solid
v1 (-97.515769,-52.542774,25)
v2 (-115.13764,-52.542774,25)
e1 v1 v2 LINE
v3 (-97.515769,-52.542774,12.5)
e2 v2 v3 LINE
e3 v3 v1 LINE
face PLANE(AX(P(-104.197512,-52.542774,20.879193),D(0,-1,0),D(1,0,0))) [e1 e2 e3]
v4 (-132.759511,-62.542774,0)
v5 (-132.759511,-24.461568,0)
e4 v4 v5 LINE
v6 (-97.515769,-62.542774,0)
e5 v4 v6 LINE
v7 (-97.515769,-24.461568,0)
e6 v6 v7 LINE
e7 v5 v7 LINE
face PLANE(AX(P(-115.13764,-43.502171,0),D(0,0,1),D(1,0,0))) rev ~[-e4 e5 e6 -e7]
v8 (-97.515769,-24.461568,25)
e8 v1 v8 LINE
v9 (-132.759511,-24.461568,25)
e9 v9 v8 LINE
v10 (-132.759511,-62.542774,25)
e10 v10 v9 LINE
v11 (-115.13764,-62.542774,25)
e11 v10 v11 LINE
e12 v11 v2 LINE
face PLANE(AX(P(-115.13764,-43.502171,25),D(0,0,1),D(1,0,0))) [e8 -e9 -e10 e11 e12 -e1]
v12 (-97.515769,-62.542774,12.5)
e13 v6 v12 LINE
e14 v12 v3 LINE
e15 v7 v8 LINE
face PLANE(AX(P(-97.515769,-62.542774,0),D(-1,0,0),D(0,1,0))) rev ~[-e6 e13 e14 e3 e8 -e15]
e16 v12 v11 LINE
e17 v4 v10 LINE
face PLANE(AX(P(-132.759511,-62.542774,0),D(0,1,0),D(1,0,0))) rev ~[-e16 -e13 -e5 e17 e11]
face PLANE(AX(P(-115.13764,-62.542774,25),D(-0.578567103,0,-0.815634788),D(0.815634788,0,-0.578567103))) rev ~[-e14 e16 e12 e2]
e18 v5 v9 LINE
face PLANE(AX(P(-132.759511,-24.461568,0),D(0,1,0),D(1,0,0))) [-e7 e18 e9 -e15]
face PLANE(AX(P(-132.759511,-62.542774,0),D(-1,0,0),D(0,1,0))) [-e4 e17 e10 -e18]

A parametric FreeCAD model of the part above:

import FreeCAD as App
import Part
import Sketcher
Q = App.Units.Quantity


def add_polygon(sketch, points):
    """Adds a closed chain of lines whose ends are joined by coincident constraints."""
    first, n = sketch.GeometryCount, len(points)
    for a, b in zip(points, points[1:] + points[:1]):
        sketch.addGeometry(Part.LineSegment(App.Vector(*a, 0), App.Vector(*b, 0)), False)
    for i in range(n):
        sketch.addConstraint(Sketcher.Constraint("Coincident", first + i, 2, first + (i + 1) % n, 1))

doc = App.newDocument("Part")
body = doc.addObject("PartDesign::Body", "Body")

# Sketch on XY plane
sketch1 = body.newObject("Sketcher::SketchObject", "Sketch")
sketch1.AttachmentSupport = (doc.getObject("XY_Plane"), [""])
sketch1.MapMode = "FlatFace"
add_polygon(sketch1, [(-133, -24), (-133, -63), (-98, -63), (-98, -24)])  # lines 0-3
sketch1.addConstraint([
    Sketcher.Constraint("Vertical", 0),
    Sketcher.Constraint("Horizontal", 1),
    Sketcher.Constraint("Vertical", 2),
    Sketcher.Constraint("Horizontal", 3),
    Sketcher.Constraint("DistanceX", 1, 1, 1, 2, Q("35.243742 mm")),
    Sketcher.Constraint("DistanceY", 0, 2, 0, 1, Q("38.081205 mm")),
    Sketcher.Constraint("DistanceX", 0, 2, -1, 1, Q("132.759511 mm")),
    Sketcher.Constraint("DistanceY", 2, 2, -1, 1, Q("24.461568 mm")),
])
pad1 = body.newObject("PartDesign::Pad", "Pad")
pad1.Profile = sketch1
pad1.Length = 25

# Sketch on XZ plane
sketch2 = body.newObject("Sketcher::SketchObject", "Sketch001")
sketch2.AttachmentSupport = (doc.getObject("XZ_Plane"), [""])
sketch2.MapMode = "FlatFace"
sketch2.AttachmentOffset = App.Placement(App.Vector(0, 0, 62.542774), App.Rotation())
add_polygon(sketch2, [(-115, 25), (-98, 12), (-98, 25)])  # lines 0-2
sketch2.addConstraint([
    Sketcher.Constraint("Vertical", 1),
    Sketcher.Constraint("Horizontal", 2),
    Sketcher.Constraint("DistanceY", 1, 1, 1, 2, Q("12.5 mm")),
    Sketcher.Constraint("DistanceY", -1, 1, 1, 2, Q("25 mm")),
    Sketcher.Constraint("Distance", 0, Q("21.6051 mm")),
    Sketcher.Constraint("DistanceX", 0, 2, -1, 1, Q("97.515769 mm")),
])
pocket1 = body.newObject("PartDesign::Pocket", "Pocket")
pocket1.Profile = sketch2
pocket1.Length = 10

doc.recompute()
